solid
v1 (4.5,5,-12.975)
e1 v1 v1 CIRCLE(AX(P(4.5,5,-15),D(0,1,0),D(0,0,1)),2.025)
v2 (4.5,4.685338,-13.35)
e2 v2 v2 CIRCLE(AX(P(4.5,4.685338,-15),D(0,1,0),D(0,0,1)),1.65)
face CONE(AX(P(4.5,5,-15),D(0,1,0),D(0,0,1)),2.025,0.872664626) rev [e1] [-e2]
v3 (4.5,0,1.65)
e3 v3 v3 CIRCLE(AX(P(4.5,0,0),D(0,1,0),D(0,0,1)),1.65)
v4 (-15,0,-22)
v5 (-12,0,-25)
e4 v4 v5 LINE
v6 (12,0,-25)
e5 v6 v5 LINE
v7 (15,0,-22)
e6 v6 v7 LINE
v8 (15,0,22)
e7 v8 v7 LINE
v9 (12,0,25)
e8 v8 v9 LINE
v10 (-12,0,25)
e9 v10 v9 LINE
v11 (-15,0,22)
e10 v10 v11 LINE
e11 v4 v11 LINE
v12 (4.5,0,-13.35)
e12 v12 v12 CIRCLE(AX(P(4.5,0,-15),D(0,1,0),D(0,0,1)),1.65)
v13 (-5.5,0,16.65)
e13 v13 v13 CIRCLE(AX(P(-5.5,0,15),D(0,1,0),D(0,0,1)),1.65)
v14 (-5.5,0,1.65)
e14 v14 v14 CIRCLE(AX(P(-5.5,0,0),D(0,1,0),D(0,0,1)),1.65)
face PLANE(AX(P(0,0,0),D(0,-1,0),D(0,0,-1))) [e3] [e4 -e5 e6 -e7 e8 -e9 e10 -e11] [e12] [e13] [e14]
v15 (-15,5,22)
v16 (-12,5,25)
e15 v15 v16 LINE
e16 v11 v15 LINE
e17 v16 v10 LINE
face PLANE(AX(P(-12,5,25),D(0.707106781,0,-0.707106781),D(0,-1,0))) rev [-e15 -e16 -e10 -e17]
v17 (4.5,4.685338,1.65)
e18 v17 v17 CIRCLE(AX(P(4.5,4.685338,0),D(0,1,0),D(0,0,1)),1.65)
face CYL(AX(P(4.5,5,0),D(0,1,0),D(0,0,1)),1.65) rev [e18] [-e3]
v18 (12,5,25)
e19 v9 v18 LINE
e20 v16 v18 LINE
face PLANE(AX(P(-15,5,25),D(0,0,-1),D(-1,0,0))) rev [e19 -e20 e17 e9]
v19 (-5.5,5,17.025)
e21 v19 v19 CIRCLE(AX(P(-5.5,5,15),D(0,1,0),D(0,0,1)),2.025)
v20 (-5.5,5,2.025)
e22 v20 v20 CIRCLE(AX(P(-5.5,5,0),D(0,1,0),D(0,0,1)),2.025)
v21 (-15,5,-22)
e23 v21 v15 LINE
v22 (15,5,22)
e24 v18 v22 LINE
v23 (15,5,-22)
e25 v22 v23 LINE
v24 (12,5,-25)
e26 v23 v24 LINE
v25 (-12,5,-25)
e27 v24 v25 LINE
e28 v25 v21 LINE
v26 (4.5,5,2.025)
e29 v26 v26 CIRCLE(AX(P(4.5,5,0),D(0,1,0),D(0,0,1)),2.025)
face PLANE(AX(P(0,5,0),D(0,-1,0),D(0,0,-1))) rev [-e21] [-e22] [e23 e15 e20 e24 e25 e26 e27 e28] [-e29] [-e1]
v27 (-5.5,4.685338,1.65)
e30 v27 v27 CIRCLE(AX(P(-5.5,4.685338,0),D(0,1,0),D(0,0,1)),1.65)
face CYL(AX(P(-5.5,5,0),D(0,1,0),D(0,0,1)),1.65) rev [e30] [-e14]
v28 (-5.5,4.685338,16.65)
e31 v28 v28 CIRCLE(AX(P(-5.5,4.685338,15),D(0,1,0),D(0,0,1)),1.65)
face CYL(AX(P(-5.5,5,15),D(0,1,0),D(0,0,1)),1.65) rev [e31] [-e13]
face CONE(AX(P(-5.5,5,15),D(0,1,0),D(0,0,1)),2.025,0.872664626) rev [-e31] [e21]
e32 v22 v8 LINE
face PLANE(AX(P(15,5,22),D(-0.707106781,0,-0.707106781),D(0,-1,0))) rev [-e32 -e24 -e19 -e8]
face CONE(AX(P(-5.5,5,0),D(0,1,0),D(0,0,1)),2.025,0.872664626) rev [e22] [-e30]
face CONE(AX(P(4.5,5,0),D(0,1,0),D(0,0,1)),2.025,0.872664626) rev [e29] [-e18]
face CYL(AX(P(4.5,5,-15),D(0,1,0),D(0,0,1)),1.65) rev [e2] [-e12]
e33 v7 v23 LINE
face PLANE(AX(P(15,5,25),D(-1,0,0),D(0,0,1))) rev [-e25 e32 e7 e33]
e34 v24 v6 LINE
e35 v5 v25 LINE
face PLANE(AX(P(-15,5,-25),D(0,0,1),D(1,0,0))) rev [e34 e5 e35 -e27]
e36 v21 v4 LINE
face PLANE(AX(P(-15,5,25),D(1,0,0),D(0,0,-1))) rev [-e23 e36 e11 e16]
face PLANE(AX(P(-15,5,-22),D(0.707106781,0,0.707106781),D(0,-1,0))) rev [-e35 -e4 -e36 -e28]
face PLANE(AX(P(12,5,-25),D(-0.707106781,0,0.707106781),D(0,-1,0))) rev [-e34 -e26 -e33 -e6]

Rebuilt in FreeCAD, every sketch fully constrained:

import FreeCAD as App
import Part
import Sketcher
from FreeCAD import Vector
Q = App.Units.Quantity


def edges_at(feature, points):
    """Names of the edges that pass closest to the given points."""
    edges = feature.Shape.Edges
    near = lambda p: min(range(len(edges)), key=lambda i: edges[i].distToShape(Part.Vertex(*p))[0])
    return sorted({f"Edge{near(p) + 1}" for p in points})

doc = App.newDocument("Part")
params = doc.addObject("Spreadsheet::Sheet", "Params")
for row, (alias, value) in enumerate([
    ("sketch1_width", "30 mm"),
    ("sketch1_height", "50 mm"),
    ("pad1_length", "5 mm"),
    ("sketch2_diameter", "3.3 mm"),
    ("hole_diameter", "3.3 mm"),
    ("hole_csink_diameter", "4.05 mm"),
    ("chamfer_size", "3 mm"),
], start=1):
    params.set(f"A{row}", alias)
    params.set(f"B{row}", "=" + value)
    params.setAlias(f"B{row}", alias)

body = doc.addObject("PartDesign::Body", "Body")

sketch1 = doc.addObject("Sketcher::SketchObject", "Sketch")
body.addObject(sketch1)
sketch1.AttachmentSupport = (doc.XZ_Plane, [""])
sketch1.MapMode = "FlatFace"
sketch1.addGeometry([
    Part.LineSegment(Vector(-15, -25, 0), Vector(-15, 25, 0)),
    Part.LineSegment(Vector(-15, 25, 0), Vector(15, 25, 0)),
    Part.LineSegment(Vector(15, 25, 0), Vector(15, -25, 0)),
    Part.LineSegment(Vector(15, -25, 0), Vector(-15, -25, 0)),
], False)
sketch1.addConstraint([
    Sketcher.Constraint("Coincident", 0, 2, 1, 1),
    Sketcher.Constraint("Coincident", 1, 2, 2, 1),
    Sketcher.Constraint("Coincident", 2, 2, 3, 1),
    Sketcher.Constraint("Coincident", 3, 2, 0, 1),
    Sketcher.Constraint("Vertical", 0),
    Sketcher.Constraint("Horizontal", 1),
    Sketcher.Constraint("Vertical", 2),
    Sketcher.Constraint("Horizontal", 3),
    Sketcher.Constraint("Symmetric", 0, 2, 2, 2, -1, 1),
    Sketcher.Constraint("DistanceX", 1, 1, 1, 2, Q("30 mm")),
    Sketcher.Constraint("DistanceY", 0, 1, 0, 2, Q("50 mm")),
])
sketch1.setExpression("Constraints[9]", "Params.sketch1_width")
sketch1.setExpression("Constraints[10]", "Params.sketch1_height")
pad1 = doc.addObject("PartDesign::Pad", "Pad")
body.addObject(pad1)
pad1.Profile = sketch1
pad1.setExpression("Length", "Params.pad1_length")
pad1.Reversed = True

sketch2 = doc.addObject("Sketcher::SketchObject", "Sketch001")
body.addObject(sketch2)
sketch2.AttachmentSupport = (doc.XZ_Plane, [""])
sketch2.MapMode = "FlatFace"
sketch2.AttachmentOffset = App.Placement(Vector(0, 0, -5), App.Rotation())
sketch2.addGeometry([
    Part.Circle(Vector(-5.5, 15, 0), Vector(0, 0, 1), 1.65),
    Part.Circle(Vector(-5.5, 0, 0), Vector(0, 0, 1), 1.65),
    Part.Circle(Vector(4.5, 0, 0), Vector(0, 0, 1), 1.65),
    Part.Circle(Vector(4.5, -15, 0), Vector(0, 0, 1), 1.65),
], False)
sketch2.addConstraint([
    Sketcher.Constraint("Equal", 0, 1),
    Sketcher.Constraint("Equal", 1, 2),
    Sketcher.Constraint("Equal", 2, 3),
    Sketcher.Constraint("PointOnObject", 1, 3, -1),
    Sketcher.Constraint("PointOnObject", 2, 3, -1),
    Sketcher.Constraint("Vertical", 0, 3, 1, 3),
    Sketcher.Constraint("Vertical", 2, 3, 3, 3),
    Sketcher.Constraint("Diameter", 0, Q("3.3 mm")),
    Sketcher.Constraint("DistanceY", -1, 1, 0, 3, Q("15 mm")),
    Sketcher.Constraint("DistanceY", 3, 3, -1, 1, Q("15 mm")),
    Sketcher.Constraint("DistanceX", 1, 3, 2, 3, Q("10 mm")),
    Sketcher.Constraint("DistanceX", 0, 3, -1, 1, Q("5.5 mm")),
])
sketch2.setExpression("Constraints[7]", "Params.sketch2_diameter")
doc.recompute()
hole = doc.addObject("PartDesign::Hole", "Hole")
body.addObject(hole)
hole.Profile = sketch2
hole.ThreadType = "None"
hole.setExpression("Diameter", "Params.hole_diameter")
hole.DepthType = "ThroughAll"
hole.HoleCutType = "Countersink"
hole.setExpression("HoleCutDiameter", "Params.hole_csink_diameter")
hole.HoleCutCountersinkAngle = 100
hole.Reversed = True
doc.recompute()

chamfer = doc.addObject("PartDesign::Chamfer", "Chamfer")
body.addObject(chamfer)
chamfer.Base = (hole, edges_at(hole, [
    (15, 2.5, 25),
    (-15, 2.5, 25),
    (-15, 2.5, -25),
    (15, 2.5, -25),
]))
chamfer.setExpression("Size", "Params.chamfer_size")

doc.recompute()
